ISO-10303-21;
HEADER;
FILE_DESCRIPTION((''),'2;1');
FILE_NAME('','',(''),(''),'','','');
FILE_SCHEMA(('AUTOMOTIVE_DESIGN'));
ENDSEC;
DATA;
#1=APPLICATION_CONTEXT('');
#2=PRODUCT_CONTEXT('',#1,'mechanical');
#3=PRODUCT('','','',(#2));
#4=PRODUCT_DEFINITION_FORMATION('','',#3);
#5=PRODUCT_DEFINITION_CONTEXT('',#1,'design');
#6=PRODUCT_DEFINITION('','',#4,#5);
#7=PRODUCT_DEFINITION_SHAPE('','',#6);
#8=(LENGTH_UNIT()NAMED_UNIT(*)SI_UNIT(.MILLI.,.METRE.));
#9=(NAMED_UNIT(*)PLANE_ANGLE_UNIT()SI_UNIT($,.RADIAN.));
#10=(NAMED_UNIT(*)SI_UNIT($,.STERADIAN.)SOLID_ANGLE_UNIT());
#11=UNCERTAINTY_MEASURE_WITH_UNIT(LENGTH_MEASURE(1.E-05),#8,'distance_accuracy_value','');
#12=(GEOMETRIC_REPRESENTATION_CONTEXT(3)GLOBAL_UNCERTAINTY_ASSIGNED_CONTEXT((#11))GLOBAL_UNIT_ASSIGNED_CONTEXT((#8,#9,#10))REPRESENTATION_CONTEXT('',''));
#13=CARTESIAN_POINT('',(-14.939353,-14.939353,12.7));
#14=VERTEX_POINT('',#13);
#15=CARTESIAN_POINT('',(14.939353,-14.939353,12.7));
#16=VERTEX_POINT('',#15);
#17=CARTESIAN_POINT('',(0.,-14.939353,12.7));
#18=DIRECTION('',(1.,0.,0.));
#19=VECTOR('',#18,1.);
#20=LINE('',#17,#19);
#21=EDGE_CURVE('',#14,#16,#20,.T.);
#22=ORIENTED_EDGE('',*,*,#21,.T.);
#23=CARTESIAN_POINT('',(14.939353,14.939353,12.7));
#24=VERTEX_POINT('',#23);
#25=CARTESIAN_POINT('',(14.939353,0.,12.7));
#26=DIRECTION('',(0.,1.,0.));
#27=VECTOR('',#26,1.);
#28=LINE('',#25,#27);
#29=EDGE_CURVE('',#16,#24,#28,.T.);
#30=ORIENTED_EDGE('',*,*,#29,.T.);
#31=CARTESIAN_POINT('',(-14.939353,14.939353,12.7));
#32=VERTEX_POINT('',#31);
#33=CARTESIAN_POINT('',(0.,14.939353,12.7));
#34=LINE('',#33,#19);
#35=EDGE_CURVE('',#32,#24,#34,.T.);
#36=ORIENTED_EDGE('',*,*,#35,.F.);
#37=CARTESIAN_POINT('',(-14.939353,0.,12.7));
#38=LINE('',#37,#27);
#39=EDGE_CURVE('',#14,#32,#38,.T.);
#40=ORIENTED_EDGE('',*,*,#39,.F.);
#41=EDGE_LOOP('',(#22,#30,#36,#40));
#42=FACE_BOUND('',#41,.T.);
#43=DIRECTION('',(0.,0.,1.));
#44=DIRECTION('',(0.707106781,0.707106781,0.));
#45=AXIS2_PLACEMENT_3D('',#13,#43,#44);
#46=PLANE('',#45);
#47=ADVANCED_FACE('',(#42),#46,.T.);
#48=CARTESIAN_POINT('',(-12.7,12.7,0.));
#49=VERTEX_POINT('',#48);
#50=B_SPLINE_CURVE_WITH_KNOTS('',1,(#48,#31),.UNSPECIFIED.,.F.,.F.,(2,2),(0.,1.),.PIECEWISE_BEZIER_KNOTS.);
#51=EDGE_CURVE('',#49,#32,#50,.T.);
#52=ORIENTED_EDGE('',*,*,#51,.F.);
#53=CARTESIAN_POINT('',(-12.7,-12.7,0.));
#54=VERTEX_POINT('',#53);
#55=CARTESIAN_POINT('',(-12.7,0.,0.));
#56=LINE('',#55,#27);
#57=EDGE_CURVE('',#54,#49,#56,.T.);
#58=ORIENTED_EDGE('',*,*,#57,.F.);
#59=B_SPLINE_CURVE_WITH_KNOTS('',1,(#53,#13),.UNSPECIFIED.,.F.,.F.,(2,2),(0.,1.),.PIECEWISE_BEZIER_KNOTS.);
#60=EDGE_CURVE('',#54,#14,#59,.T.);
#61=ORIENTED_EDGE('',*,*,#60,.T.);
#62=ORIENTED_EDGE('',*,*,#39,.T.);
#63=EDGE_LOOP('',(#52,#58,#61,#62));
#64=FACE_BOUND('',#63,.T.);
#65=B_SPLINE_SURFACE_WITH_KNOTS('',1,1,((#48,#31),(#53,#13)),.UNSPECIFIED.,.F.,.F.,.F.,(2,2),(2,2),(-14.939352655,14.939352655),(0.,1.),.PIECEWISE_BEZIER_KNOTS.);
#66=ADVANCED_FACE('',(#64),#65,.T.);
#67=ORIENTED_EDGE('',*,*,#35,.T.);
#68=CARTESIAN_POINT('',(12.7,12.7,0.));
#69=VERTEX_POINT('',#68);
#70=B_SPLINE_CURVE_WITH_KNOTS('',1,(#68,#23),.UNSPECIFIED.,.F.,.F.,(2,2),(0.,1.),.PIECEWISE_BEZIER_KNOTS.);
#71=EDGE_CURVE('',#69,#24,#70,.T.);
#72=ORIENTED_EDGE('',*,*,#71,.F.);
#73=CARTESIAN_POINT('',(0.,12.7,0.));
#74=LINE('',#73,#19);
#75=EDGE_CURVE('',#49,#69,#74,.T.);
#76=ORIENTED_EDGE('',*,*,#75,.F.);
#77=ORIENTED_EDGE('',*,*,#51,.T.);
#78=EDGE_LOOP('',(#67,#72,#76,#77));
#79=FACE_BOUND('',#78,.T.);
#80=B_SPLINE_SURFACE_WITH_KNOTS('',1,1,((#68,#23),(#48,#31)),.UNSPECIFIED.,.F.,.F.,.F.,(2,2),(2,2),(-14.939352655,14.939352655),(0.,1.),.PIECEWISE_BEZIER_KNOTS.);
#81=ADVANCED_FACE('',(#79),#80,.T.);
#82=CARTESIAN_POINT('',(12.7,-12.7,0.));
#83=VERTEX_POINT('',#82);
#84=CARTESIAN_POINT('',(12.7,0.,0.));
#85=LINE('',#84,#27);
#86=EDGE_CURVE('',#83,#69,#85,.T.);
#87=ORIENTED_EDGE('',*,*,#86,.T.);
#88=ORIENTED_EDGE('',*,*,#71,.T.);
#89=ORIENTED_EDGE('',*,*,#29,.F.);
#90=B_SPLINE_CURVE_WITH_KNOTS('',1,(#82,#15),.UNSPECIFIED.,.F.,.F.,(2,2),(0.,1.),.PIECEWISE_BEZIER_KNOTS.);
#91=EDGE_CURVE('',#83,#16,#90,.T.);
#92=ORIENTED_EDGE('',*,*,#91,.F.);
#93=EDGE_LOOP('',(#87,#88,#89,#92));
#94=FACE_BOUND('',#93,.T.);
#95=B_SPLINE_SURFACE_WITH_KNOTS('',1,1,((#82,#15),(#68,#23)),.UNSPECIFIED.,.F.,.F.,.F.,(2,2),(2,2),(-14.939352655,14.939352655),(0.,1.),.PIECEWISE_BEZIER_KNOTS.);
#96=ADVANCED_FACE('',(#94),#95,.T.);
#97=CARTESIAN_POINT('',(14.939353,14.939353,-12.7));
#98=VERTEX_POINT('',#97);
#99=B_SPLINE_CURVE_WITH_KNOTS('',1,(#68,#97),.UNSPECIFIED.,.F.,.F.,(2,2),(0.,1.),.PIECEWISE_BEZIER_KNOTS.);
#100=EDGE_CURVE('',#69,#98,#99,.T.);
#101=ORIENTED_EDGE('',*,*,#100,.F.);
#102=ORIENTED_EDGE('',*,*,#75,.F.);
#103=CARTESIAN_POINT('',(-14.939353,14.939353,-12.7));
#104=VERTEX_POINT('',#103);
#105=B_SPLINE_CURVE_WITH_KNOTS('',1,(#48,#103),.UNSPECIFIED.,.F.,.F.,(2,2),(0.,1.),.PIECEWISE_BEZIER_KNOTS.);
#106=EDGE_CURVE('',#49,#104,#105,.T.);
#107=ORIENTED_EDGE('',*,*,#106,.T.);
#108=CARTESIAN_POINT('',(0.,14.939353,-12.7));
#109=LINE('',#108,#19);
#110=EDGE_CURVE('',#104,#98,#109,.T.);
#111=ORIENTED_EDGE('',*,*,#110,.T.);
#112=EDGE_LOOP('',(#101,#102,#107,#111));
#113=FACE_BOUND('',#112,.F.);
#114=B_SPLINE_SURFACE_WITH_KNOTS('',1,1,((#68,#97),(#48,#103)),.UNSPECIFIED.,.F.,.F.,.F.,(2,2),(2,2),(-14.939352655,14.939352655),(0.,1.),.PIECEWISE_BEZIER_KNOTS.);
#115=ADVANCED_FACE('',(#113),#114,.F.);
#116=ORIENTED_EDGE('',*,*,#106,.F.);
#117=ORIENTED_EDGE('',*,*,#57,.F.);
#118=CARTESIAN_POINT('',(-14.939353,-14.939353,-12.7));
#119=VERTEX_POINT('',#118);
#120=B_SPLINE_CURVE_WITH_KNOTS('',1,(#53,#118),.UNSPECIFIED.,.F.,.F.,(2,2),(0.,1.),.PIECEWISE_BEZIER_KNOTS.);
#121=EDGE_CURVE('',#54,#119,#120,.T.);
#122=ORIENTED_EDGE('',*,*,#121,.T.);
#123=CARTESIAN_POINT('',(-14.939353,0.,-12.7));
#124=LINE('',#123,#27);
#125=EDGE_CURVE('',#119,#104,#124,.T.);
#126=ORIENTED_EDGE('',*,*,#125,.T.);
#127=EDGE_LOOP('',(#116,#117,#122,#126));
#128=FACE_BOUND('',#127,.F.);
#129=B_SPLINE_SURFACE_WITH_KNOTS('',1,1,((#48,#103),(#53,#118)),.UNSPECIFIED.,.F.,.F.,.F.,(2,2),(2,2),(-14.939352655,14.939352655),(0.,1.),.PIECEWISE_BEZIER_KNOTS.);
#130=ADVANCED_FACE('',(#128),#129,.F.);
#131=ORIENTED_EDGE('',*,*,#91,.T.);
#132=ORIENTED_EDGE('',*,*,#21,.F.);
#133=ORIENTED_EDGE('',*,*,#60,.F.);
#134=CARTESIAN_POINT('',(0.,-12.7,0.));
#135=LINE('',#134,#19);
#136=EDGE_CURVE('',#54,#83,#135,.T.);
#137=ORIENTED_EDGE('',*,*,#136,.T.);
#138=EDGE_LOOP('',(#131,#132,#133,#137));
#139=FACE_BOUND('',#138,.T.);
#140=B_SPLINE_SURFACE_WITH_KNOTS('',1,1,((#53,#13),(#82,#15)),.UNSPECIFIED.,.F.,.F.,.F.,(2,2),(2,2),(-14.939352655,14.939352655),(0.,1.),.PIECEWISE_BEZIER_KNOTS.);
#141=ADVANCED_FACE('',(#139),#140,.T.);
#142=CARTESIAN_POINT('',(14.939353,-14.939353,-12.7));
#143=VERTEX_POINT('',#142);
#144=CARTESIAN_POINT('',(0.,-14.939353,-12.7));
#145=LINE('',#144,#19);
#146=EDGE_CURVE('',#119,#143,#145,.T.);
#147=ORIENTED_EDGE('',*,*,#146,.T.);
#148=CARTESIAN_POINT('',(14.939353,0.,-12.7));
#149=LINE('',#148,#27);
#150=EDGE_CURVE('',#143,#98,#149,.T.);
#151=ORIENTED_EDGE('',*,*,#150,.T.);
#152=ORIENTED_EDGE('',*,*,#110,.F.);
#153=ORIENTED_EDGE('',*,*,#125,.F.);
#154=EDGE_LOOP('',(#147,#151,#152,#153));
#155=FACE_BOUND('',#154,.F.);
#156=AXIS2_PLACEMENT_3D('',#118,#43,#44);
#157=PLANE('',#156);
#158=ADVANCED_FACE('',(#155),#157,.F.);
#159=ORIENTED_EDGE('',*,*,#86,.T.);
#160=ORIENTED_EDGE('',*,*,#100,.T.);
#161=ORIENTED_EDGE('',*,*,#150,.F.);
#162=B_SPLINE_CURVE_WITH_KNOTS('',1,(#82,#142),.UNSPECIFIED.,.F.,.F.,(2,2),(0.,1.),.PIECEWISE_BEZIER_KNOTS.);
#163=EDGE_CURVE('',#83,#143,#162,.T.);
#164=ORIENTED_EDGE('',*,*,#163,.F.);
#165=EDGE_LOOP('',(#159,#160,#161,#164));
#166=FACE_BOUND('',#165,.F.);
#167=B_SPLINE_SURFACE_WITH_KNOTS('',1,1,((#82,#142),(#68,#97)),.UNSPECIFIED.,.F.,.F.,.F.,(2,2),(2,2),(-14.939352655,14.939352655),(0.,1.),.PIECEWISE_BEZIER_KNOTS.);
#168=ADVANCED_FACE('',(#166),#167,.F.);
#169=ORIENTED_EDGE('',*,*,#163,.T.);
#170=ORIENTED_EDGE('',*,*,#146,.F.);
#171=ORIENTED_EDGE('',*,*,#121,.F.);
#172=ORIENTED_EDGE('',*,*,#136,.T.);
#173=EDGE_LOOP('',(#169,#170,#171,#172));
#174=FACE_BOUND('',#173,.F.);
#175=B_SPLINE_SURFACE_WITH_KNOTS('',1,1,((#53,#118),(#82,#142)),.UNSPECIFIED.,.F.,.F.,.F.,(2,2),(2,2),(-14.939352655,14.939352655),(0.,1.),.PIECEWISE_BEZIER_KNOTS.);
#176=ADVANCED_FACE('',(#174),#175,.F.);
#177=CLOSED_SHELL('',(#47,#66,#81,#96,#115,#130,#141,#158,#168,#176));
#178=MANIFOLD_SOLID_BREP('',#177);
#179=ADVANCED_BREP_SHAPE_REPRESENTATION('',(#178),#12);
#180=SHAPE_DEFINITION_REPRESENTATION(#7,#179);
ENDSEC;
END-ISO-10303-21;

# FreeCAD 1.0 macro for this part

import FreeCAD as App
import Part
import Sketcher

V = App.Vector
Q = App.Units.Quantity

doc = App.newDocument("Part")
body = doc.addObject("PartDesign::Body", "Body")

# Sketch on XY plane
sketch1 = body.newObject("Sketcher::SketchObject", "Sketch")
sketch1.AttachmentSupport = (doc.getObject("XY_Plane"), [""])
sketch1.MapMode = "FlatFace"
sketch1.addGeometry(Part.LineSegment(V(-13, 13, 0), V(-13, -13, 0)), False)
sketch1.addGeometry(Part.LineSegment(V(-13, -13, 0), V(13, -13, 0)), False)
sketch1.addGeometry(Part.LineSegment(V(13, -13, 0), V(13, 13, 0)), False)
sketch1.addGeometry(Part.LineSegment(V(13, 13, 0), V(-13, 13, 0)), False)
sketch1.addConstraint(Sketcher.Constraint("Coincident", 0, 2, 1, 1))
sketch1.addConstraint(Sketcher.Constraint("Coincident", 1, 2, 2, 1))
sketch1.addConstraint(Sketcher.Constraint("Coincident", 2, 2, 3, 1))
sketch1.addConstraint(Sketcher.Constraint("Coincident", 3, 2, 0, 1))
sketch1.addConstraint(Sketcher.Constraint("Vertical", 0))
sketch1.addConstraint(Sketcher.Constraint("Horizontal", 1))
sketch1.addConstraint(Sketcher.Constraint("Vertical", 2))
sketch1.addConstraint(Sketcher.Constraint("Horizontal", 3))
sketch1.addConstraint(Sketcher.Constraint("Symmetric", 0, 2, 2, 2, -1, 1))
sketch1.addConstraint(Sketcher.Constraint("Equal", 3, 0))
sketch1.addConstraint(Sketcher.Constraint("DistanceX", 1, 1, 1, 2, Q("1 in")))
pad1 = body.newObject("PartDesign::Pad", "Pad")
pad1.Profile = sketch1
pad1.Length = Q("1 in")
pad1.Midplane = True
pad1.TaperAngle = 10

doc.recompute()
